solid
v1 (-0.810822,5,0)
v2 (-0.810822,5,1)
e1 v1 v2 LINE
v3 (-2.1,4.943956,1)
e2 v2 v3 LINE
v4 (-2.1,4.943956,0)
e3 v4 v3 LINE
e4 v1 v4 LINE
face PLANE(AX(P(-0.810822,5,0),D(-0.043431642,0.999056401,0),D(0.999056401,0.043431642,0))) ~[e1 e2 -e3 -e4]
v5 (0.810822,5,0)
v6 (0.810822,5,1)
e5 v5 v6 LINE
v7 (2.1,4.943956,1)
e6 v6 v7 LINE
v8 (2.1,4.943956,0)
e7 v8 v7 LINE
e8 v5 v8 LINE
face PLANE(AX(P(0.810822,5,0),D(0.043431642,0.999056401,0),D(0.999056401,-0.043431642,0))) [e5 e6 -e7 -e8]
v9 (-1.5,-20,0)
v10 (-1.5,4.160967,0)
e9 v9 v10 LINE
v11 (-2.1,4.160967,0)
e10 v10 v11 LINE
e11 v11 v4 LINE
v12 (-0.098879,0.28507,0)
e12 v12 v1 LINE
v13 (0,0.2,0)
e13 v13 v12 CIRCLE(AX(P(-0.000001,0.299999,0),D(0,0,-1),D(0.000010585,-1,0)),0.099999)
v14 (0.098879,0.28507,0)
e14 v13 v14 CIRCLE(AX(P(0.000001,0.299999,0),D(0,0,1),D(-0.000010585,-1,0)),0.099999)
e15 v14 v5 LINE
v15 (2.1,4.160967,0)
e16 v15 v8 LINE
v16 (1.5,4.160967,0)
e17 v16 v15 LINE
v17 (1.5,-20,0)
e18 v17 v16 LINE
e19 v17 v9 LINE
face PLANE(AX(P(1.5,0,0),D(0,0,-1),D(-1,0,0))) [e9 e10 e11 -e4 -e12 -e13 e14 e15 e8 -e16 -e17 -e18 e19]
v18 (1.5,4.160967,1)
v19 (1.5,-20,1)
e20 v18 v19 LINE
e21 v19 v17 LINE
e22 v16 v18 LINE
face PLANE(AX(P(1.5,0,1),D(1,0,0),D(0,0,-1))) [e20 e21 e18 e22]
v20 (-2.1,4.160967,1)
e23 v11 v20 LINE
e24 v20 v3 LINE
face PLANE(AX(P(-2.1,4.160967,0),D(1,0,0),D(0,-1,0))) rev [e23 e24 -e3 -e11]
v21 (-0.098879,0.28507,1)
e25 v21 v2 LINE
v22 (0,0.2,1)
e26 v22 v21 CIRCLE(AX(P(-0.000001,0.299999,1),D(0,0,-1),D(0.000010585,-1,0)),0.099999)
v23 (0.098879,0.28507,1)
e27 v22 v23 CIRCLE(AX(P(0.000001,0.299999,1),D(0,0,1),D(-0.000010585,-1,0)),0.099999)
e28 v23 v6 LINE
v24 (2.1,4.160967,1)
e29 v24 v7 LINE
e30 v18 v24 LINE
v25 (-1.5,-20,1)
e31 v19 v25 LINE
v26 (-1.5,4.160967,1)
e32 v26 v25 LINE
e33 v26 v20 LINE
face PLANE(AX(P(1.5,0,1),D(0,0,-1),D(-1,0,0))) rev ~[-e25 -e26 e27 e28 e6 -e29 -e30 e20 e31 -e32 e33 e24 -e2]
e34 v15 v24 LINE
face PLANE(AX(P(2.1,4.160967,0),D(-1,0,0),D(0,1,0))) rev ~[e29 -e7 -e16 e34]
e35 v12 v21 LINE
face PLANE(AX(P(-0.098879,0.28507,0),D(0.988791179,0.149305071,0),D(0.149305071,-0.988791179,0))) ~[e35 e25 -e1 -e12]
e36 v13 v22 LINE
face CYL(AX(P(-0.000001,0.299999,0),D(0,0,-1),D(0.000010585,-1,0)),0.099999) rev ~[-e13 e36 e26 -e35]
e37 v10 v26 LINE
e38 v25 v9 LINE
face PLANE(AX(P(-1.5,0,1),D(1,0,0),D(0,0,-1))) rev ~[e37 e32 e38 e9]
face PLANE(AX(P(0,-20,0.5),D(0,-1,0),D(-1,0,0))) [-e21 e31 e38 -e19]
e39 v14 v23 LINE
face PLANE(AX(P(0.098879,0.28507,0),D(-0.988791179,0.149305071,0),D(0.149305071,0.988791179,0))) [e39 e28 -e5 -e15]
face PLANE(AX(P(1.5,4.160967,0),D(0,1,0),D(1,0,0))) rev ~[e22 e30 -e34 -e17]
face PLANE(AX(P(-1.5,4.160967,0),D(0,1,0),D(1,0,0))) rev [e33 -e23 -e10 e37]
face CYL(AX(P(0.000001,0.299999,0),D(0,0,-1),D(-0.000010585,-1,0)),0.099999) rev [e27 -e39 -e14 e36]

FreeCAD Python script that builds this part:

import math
import FreeCAD as App
import Part
import Sketcher
from FreeCAD import Vector


def add_polygon(sketch, points):
    """Adds a closed chain of lines whose ends are joined by coincident constraints."""
    first, n = sketch.GeometryCount, len(points)
    for a, b in zip(points, points[1:] + points[:1]):
        sketch.addGeometry(Part.LineSegment(App.Vector(*a, 0), App.Vector(*b, 0)), False)
    for i in range(n):
        sketch.addConstraint(Sketcher.Constraint("Coincident", first + i, 2, first + (i + 1) % n, 1))

doc = App.newDocument("Part")
body = doc.addObject("PartDesign::Body", "Body")

# Sketch on XY plane
sketch1 = body.newObject("Sketcher::SketchObject", "Sketch")
sketch1.AttachmentSupport = (doc.getObject("XY_Plane"), [""])
sketch1.MapMode = "FlatFace"
sketch1.addGeometry([
    Part.LineSegment(Vector(0, 0, 0), Vector(1.5, 0, 0)),  # 0
    Part.LineSegment(Vector(1.5, 0, 0), Vector(1.5, 4.16, 0)),  # 1
    Part.LineSegment(Vector(1.5, 4.16, 0), Vector(2.1, 4.16, 0)),  # 2
    Part.LineSegment(Vector(2.1, 4.16, 0), Vector(2.1, 4.94, 0)),  # 3
    Part.LineSegment(Vector(2.1, 4.94, 0), Vector(0.81, 5, 0)),  # 4
    Part.LineSegment(Vector(0.81, 5, 0), Vector(0.1, 0.29, 0)),  # 5
    Part.ArcOfCircle(Part.Circle(Vector(0, 0.3, 0), Vector(0, 0, 1), 0.1), math.radians(-90), math.radians(-9)),  # 6
    Part.LineSegment(Vector(0, 0.2, 0), Vector(0, 0, 0)),  # 7
], False)
sketch1.addConstraint([
    Sketcher.Constraint("Coincident", 0, 2, 1, 1),
    Sketcher.Constraint("Coincident", 1, 2, 2, 1),
    Sketcher.Constraint("Coincident", 2, 2, 3, 1),
    Sketcher.Constraint("Coincident", 3, 2, 4, 1),
    Sketcher.Constraint("Coincident", 4, 2, 5, 1),
    Sketcher.Constraint("Coincident", 5, 2, 6, 2),
    Sketcher.Constraint("Coincident", 6, 1, 7, 1),
    Sketcher.Constraint("Coincident", 7, 2, 0, 1),
    Sketcher.Constraint("Horizontal", 0),
    Sketcher.Constraint("Vertical", 1),
    Sketcher.Constraint("Horizontal", 2),
    Sketcher.Constraint("Vertical", 3),
    Sketcher.Constraint("Vertical", 7),
    Sketcher.Constraint("Coincident", 7, 2, -1, 1),
    Sketcher.Constraint("PointOnObject", 6, 3, -2),
    Sketcher.Constraint("Radius", 6, 0.099999),
    Sketcher.Constraint("DistanceX", 0, 1, 0, 2, 1.5),
    Sketcher.Constraint("DistanceX", 2, 1, 2, 2, 0.6),
    Sketcher.Constraint("DistanceY", 7, 2, 7, 1, 0.2),
    Sketcher.Constraint("DistanceY", -1, 1, 4, 2, 5.0),
    Sketcher.Constraint("DistanceY", 3, 1, 3, 2, 0.782989),
    Sketcher.Constraint("DistanceY", 1, 1, 1, 2, 4.160967),
    Sketcher.Constraint("DistanceX", -1, 1, 5, 2, 0.098879),
    Sketcher.Constraint("DistanceX", 4, 2, 3, 2, 1.289178),
])
pad1 = body.newObject("PartDesign::Pad", "Pad")
pad1.Profile = sketch1
pad1.Length = 1
doc.recompute()

mirrored = body.newObject("PartDesign::Mirrored", "Mirrored")
mirrored.Originals = [pad1]
mirrored.MirrorPlane = (doc.getObject("YZ_Plane"), [""])
body.Tip = mirrored

# Sketch on XZ plane
sketch2 = body.newObject("Sketcher::SketchObject", "Sketch001")
sketch2.AttachmentSupport = (doc.getObject("XZ_Plane"), [""])
sketch2.MapMode = "FlatFace"
add_polygon(sketch2, [(1.5, 0), (1.5, 1), (-1.5, 1), (-1.5, 0)])  # lines 0-3
sketch2.addConstraint([
    Sketcher.Constraint("Vertical", 0),
    Sketcher.Constraint("Horizontal", 1),
    Sketcher.Constraint("Vertical", 2),
    Sketcher.Constraint("Horizontal", 3),
    Sketcher.Constraint("Symmetric", 2, 2, 3, 2, -1, 1),
    Sketcher.Constraint("DistanceX", 1, 2, 1, 1, 3.0),
    Sketcher.Constraint("DistanceY", 0, 1, 0, 2, 1.0),
])
pad2 = body.newObject("PartDesign::Pad", "Pad001")
pad2.Profile = sketch2
pad2.Length = 20

doc.recompute()
